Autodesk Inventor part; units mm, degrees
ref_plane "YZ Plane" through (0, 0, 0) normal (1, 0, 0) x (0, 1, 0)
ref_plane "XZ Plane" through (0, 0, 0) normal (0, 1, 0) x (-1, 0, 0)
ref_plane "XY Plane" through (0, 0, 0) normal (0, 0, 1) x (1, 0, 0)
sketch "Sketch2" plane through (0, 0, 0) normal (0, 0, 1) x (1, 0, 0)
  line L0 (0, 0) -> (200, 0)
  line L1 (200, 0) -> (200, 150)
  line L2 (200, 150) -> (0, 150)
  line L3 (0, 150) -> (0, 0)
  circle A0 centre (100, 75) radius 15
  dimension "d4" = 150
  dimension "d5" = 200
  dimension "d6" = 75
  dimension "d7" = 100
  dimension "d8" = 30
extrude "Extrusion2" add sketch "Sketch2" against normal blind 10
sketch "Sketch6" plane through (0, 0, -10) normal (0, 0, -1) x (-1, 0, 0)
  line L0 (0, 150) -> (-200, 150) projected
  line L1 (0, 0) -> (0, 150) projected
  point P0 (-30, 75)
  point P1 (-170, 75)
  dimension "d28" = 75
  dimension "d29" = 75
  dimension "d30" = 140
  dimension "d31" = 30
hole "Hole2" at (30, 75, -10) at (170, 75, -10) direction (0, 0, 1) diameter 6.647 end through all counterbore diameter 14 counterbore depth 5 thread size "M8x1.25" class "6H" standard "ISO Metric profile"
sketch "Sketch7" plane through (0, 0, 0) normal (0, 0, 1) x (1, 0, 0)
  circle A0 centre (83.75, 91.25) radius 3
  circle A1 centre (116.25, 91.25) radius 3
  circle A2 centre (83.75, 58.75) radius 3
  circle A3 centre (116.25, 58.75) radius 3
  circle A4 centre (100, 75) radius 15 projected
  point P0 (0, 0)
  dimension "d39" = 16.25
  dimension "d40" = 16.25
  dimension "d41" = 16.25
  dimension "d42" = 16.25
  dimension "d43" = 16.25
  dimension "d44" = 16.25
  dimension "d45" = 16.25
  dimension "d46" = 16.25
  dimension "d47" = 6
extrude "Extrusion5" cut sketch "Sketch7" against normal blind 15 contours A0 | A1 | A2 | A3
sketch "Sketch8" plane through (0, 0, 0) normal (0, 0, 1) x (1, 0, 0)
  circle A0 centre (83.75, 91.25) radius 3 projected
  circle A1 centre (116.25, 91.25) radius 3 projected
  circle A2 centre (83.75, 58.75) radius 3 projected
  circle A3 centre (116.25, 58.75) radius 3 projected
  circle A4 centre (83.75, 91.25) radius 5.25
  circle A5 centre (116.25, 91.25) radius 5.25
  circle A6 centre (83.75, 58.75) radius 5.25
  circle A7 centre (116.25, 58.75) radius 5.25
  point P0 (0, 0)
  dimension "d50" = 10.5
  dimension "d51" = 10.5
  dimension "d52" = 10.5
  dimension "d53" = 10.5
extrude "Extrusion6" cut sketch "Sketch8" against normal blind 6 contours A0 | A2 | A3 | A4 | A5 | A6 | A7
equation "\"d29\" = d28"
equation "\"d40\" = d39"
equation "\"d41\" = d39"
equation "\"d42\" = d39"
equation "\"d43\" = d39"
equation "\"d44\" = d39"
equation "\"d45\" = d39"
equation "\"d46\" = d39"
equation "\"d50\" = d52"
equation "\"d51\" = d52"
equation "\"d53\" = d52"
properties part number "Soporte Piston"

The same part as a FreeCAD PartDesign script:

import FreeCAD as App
import Part
import Sketcher
from FreeCAD import Vector
Q = App.Units.Quantity


def add_polygon(sketch, points):
    """Adds a closed chain of lines whose ends are joined by coincident constraints."""
    first, n = sketch.GeometryCount, len(points)
    for a, b in zip(points, points[1:] + points[:1]):
        sketch.addGeometry(Part.LineSegment(App.Vector(*a, 0), App.Vector(*b, 0)), False)
    for i in range(n):
        sketch.addConstraint(Sketcher.Constraint("Coincident", first + i, 2, first + (i + 1) % n, 1))

doc = App.newDocument("Part")
body = doc.addObject("PartDesign::Body", "Body")

# Sketch on XY plane
sketch1 = body.newObject("Sketcher::SketchObject", "Sketch")
sketch1.AttachmentSupport = (doc.getObject("XY_Plane"), [""])
sketch1.MapMode = "FlatFace"
add_polygon(sketch1, [(0, 150), (0, 0), (200, 0), (200, 150)])  # lines 0-3
sketch1.addGeometry(Part.Circle(Vector(100, 75, 0), Vector(0, 0, 1), 15), False)  # 4
sketch1.addConstraint(Sketcher.Constraint("Vertical", 0))
sketch1.addConstraint(Sketcher.Constraint("Horizontal", 1))
sketch1.addConstraint(Sketcher.Constraint("Vertical", 2))
sketch1.addConstraint(Sketcher.Constraint("Horizontal", 3))
sketch1.addConstraint(Sketcher.Constraint("Coincident", 0, 2, -1, 1))
sketch1.addConstraint(Sketcher.Constraint("Diameter", 4, Q("30 mm")))
sketch1.addConstraint(Sketcher.Constraint("DistanceX", 1, 1, 1, 2, Q("200 mm")))
sketch1.addConstraint(Sketcher.Constraint("DistanceY", 0, 2, 0, 1, Q("150 mm")))
sketch1.addConstraint(Sketcher.Constraint("DistanceX", -1, 1, 4, 3, Q("100 mm")))
sketch1.addConstraint(Sketcher.Constraint("DistanceY", -1, 1, 4, 3, Q("75 mm")))
pad1 = body.newObject("PartDesign::Pad", "Pad")
pad1.Profile = sketch1
pad1.Length = 10
pad1.Reversed = True

# Sketch on XY plane
sketch2 = body.newObject("Sketcher::SketchObject", "Sketch001")
sketch2.AttachmentSupport = (doc.getObject("XY_Plane"), [""])
sketch2.MapMode = "FlatFace"
sketch2.AttachmentOffset = App.Placement(Vector(0, 0, -10), App.Rotation())
sketch2.addGeometry(Part.Circle(Vector(30, 75, 0), Vector(0, 0, 1), 3.3235), False)
sketch2.addGeometry(Part.Circle(Vector(170, 75, 0), Vector(0, 0, 1), 3.3235), False)
sketch2.addConstraint(Sketcher.Constraint("Equal", 0, 1))
sketch2.addConstraint(Sketcher.Constraint("Horizontal", 0, 3, 1, 3))
sketch2.addConstraint(Sketcher.Constraint("Diameter", 0, Q("6.647 mm")))
sketch2.addConstraint(Sketcher.Constraint("DistanceX", -1, 1, 0, 3, Q("30 mm")))
sketch2.addConstraint(Sketcher.Constraint("DistanceY", -1, 1, 0, 3, Q("75 mm")))
sketch2.addConstraint(Sketcher.Constraint("DistanceX", -1, 1, 1, 3, Q("170 mm")))
doc.recompute()
hole = body.newObject("PartDesign::Hole", "Hole")
hole.Profile = sketch2
hole.ThreadType = "None"
hole.Diameter = 6.647
hole.DepthType = "ThroughAll"
hole.HoleCutType = "Counterbore"
hole.HoleCutDiameter = 14
hole.HoleCutDepth = 5
hole.Reversed = True

# Sketch on XY plane
sketch3 = body.newObject("Sketcher::SketchObject", "Sketch002")
sketch3.AttachmentSupport = (doc.getObject("XY_Plane"), [""])
sketch3.MapMode = "FlatFace"
sketch3.addGeometry(Part.Circle(Vector(83.75, 91.25, 0), Vector(0, 0, 1), 3), False)
sketch3.addGeometry(Part.Circle(Vector(116.25, 91.25, 0), Vector(0, 0, 1), 3), False)
sketch3.addGeometry(Part.Circle(Vector(83.75, 58.75, 0), Vector(0, 0, 1), 3), False)
sketch3.addGeometry(Part.Circle(Vector(116.25, 58.75, 0), Vector(0, 0, 1), 3), False)
sketch3.addConstraint(Sketcher.Constraint("Equal", 0, 1))
sketch3.addConstraint(Sketcher.Constraint("Equal", 1, 2))
sketch3.addConstraint(Sketcher.Constraint("Equal", 2, 3))
sketch3.addConstraint(Sketcher.Constraint("Horizontal", 0, 3, 1, 3))
sketch3.addConstraint(Sketcher.Constraint("Horizontal", 2, 3, 3, 3))
sketch3.addConstraint(Sketcher.Constraint("Vertical", 0, 3, 2, 3))
sketch3.addConstraint(Sketcher.Constraint("Vertical", 1, 3, 3, 3))
sketch3.addConstraint(Sketcher.Constraint("Diameter", 0, Q("6 mm")))
sketch3.addConstraint(Sketcher.Constraint("DistanceX", 0, 3, 1, 3, Q("32.5 mm")))
sketch3.addConstraint(Sketcher.Constraint("DistanceY", 2, 3, 0, 3, Q("32.5 mm")))
sketch3.addConstraint(Sketcher.Constraint("DistanceX", -1, 1, 0, 3, Q("83.75 mm")))
sketch3.addConstraint(Sketcher.Constraint("DistanceY", -1, 1, 0, 3, Q("91.25 mm")))
pocket1 = body.newObject("PartDesign::Pocket", "Pocket")
pocket1.Profile = sketch3
pocket1.Length = 15

# Sketch on XY plane
sketch4 = body.newObject("Sketcher::SketchObject", "Sketch003")
sketch4.AttachmentSupport = (doc.getObject("XY_Plane"), [""])
sketch4.MapMode = "FlatFace"
sketch4.addGeometry(Part.Circle(Vector(83.75, 91.25, 0), Vector(0, 0, 1), 5.25), False)
sketch4.addGeometry(Part.Circle(Vector(83.75, 58.75, 0), Vector(0, 0, 1), 5.25), False)
sketch4.addGeometry(Part.Circle(Vector(116.25, 58.75, 0), Vector(0, 0, 1), 5.25), False)
sketch4.addGeometry(Part.Circle(Vector(116.25, 91.25, 0), Vector(0, 0, 1), 5.25), False)
sketch4.addGeometry(Part.Circle(Vector(116.25, 91.25, 0), Vector(0, 0, 1), 3), False)
sketch4.addConstraint(Sketcher.Constraint("Coincident", 4, 3, 3, 3))
sketch4.addConstraint(Sketcher.Constraint("Equal", 0, 1))
sketch4.addConstraint(Sketcher.Constraint("Equal", 1, 2))
sketch4.addConstraint(Sketcher.Constraint("Equal", 2, 3))
sketch4.addConstraint(Sketcher.Constraint("Horizontal", 1, 3, 2, 3))
sketch4.addConstraint(Sketcher.Constraint("Horizontal", 0, 3, 3, 3))
sketch4.addConstraint(Sketcher.Constraint("Vertical", 0, 3, 1, 3))
sketch4.addConstraint(Sketcher.Constraint("Vertical", 2, 3, 3, 3))
sketch4.addConstraint(Sketcher.Constraint("Diameter", 0, Q("10.5 mm")))
sketch4.addConstraint(Sketcher.Constraint("Diameter", 4, Q("6 mm")))
sketch4.addConstraint(Sketcher.Constraint("DistanceY", 1, 3, 0, 3, Q("32.5 mm")))
sketch4.addConstraint(Sketcher.Constraint("DistanceX", 1, 3, 2, 3, Q("32.5 mm")))
sketch4.addConstraint(Sketcher.Constraint("DistanceX", -1, 1, 0, 3, Q("83.75 mm")))
sketch4.addConstraint(Sketcher.Constraint("DistanceY", -1, 1, 0, 3, Q("91.25 mm")))
pocket2 = body.newObject("PartDesign::Pocket", "Pocket001")
pocket2.Profile = sketch4
pocket2.Length = 6

doc.recompute()
